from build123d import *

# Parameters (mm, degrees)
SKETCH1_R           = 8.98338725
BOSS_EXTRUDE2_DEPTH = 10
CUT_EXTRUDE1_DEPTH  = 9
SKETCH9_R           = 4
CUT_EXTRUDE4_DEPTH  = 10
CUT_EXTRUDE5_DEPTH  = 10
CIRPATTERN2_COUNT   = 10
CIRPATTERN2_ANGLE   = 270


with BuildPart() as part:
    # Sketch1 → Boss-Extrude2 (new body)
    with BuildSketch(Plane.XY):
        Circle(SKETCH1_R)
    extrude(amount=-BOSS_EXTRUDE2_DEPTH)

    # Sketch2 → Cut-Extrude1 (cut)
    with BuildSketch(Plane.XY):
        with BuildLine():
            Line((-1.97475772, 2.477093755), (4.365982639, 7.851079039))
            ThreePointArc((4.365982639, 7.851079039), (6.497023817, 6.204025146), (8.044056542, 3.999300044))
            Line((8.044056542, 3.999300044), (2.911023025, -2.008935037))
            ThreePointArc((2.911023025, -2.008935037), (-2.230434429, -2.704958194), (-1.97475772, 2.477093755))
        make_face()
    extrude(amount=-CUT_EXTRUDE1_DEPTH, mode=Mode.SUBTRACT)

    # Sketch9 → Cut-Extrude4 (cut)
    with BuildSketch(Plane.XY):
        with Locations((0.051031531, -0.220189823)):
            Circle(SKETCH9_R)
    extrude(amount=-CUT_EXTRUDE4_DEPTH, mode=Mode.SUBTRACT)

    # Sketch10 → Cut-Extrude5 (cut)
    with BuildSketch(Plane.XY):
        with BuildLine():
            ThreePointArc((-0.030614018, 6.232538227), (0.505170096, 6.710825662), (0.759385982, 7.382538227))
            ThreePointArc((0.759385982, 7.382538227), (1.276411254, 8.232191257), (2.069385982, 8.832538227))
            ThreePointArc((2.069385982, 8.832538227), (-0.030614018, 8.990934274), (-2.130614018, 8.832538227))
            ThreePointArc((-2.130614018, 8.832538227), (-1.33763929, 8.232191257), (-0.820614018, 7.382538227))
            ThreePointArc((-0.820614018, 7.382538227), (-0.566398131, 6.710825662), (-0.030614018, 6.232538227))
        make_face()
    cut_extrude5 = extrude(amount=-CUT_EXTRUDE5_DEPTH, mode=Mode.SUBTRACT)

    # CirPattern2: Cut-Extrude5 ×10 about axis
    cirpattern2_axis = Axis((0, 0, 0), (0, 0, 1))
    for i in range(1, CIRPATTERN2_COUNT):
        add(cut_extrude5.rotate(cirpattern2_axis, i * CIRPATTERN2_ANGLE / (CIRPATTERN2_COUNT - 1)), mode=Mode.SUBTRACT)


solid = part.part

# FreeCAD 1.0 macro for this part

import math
import FreeCAD as App
import Part
import Sketcher
Q = App.Units.Quantity

doc = App.newDocument("Part")
params = doc.addObject("Spreadsheet::Sheet", "Params")
for row, (alias, value) in enumerate([
    ("pad1_length", "10 mm"),
    ("pocket1_length", "9 mm"),
    ("sketch3_diameter", "8 mm"),
    ("pocket2_length", "10 mm"),
    ("sketch4_radius", "14 mm"),
    ("sketch4_radius2", "1.51 mm"),
    ("sketch4_radius3", "2.66 mm"),
    ("pocket3_length", "10 mm"),
], start=1):
    params.set(f"A{row}", alias)
    params.set(f"B{row}", "=" + value)
    params.setAlias(f"B{row}", alias)

body = doc.addObject("PartDesign::Body", "Body")

sketch1 = body.newObject("Sketcher::SketchObject", "Sketch")
sketch1.AttachmentSupport = (doc.getObject("XY_Plane"), [""])
sketch1.MapMode = "FlatFace"
sketch1.addGeometry(Part.Circle(App.Vector(0, 0, 0), App.Vector(0, 0, 1), 9), False)
sketch1.addConstraint([
    Sketcher.Constraint("Coincident", 0, 3, -1, 1),
    Sketcher.Constraint("Diameter", 0, Q("17.966774 mm")),
])
pad1 = body.newObject("PartDesign::Pad", "Pad")
pad1.Profile = sketch1
pad1.setExpression("Length", "Params.pad1_length")
pad1.Reversed = True

sketch2 = body.newObject("Sketcher::SketchObject", "Sketch001")
sketch2.AttachmentSupport = (doc.getObject("XY_Plane"), [""])
sketch2.MapMode = "FlatFace"
sketch2.addGeometry([
    Part.LineSegment(App.Vector(4.4, 7.9, 0), App.Vector(-2, 2.5, 0)),
    Part.ArcOfCircle(Part.Circle(App.Vector(0.1, -0.2, 0), App.Vector(0, 0, 1), 3.4), math.radians(127), math.radians(328)),
    Part.LineSegment(App.Vector(2.9, -2, 0), App.Vector(8, 4, 0)),
    Part.ArcOfCircle(Part.Circle(App.Vector(0, 0, 0), App.Vector(0, 0, 1), 9), math.radians(26), math.radians(61)),
], False)
sketch2.addConstraint([
    Sketcher.Constraint("Coincident", 0, 2, 1, 1),
    Sketcher.Constraint("Coincident", 1, 2, 2, 1),
    Sketcher.Constraint("Coincident", 2, 2, 3, 1),
    Sketcher.Constraint("Coincident", 3, 2, 0, 1),
    Sketcher.Constraint("Coincident", 3, 3, -1, 1),
    Sketcher.Constraint("Radius", 1, Q("3.373301 mm")),
    Sketcher.Constraint("Radius", 3, Q("8.983387 mm")),
    Sketcher.Constraint("DistanceY", -1, 1, 2, 2, Q("3.9993 mm")),
    Sketcher.Constraint("Distance", 0, Q("8.311721 mm")),
    Sketcher.Constraint("DistanceX", -1, 1, 1, 3, Q("0.051032 mm")),
    Sketcher.Constraint("DistanceY", 1, 3, -1, 1, Q("0.22019 mm")),
    Sketcher.Constraint("DistanceY", -1, 1, 3, 2, Q("7.851079 mm")),
    Sketcher.Constraint("DistanceX", 1, 3, 1, 2, Q("2.859991 mm")),
])
pocket1 = body.newObject("PartDesign::Pocket", "Pocket")
pocket1.Profile = sketch2
pocket1.setExpression("Length", "Params.pocket1_length")

sketch3 = body.newObject("Sketcher::SketchObject", "Sketch002")
sketch3.AttachmentSupport = (doc.getObject("XY_Plane"), [""])
sketch3.MapMode = "FlatFace"
sketch3.addGeometry(Part.Circle(App.Vector(0.1, -0.2, 0), App.Vector(0, 0, 1), 4), False)
sketch3.addConstraint([
    Sketcher.Constraint("Diameter", 0, Q("8 mm")),
    Sketcher.Constraint("DistanceX", -1, 1, 0, 3, Q("0.051032 mm")),
    Sketcher.Constraint("DistanceY", 0, 3, -1, 1, Q("0.22019 mm")),
])
sketch3.setExpression("Constraints[0]", "Params.sketch3_diameter")
pocket2 = body.newObject("PartDesign::Pocket", "Pocket001")
pocket2.Profile = sketch3
pocket2.setExpression("Length", "Params.pocket2_length")

sketch4 = body.newObject("Sketcher::SketchObject", "Sketch003")
sketch4.AttachmentSupport = (doc.getObject("XY_Plane"), [""])
sketch4.MapMode = "FlatFace"
sketch4.addGeometry([
    Part.ArcOfCircle(Part.Circle(App.Vector(-0.7, 7.6, 0), App.Vector(0, 0, 1), 1.5), math.radians(-62), math.radians(-7)),
    Part.ArcOfCircle(Part.Circle(App.Vector(3.3, 6.4, 0), App.Vector(0, 0, 1), 2.7), math.radians(116), math.radians(159)),
    Part.ArcOfCircle(Part.Circle(App.Vector(0, -5, 0), App.Vector(0, 0, 1), 14), math.radians(81.37), math.radians(98.63)),
    Part.ArcOfCircle(Part.Circle(App.Vector(-3.3, 6.4, 0), App.Vector(0, 0, 1), 2.7), math.radians(21), math.radians(64)),
    Part.ArcOfCircle(Part.Circle(App.Vector(0.7, 7.6, 0), App.Vector(0, 0, 1), 1.5), math.radians(-173), math.radians(-118)),
], False)
sketch4.addConstraint([
    Sketcher.Constraint("Coincident", 0, 2, 1, 2),
    Sketcher.Constraint("Coincident", 1, 1, 2, 1),
    Sketcher.Constraint("Coincident", 2, 2, 3, 2),
    Sketcher.Constraint("Coincident", 3, 1, 4, 1),
    Sketcher.Constraint("Coincident", 4, 2, 0, 1),
    Sketcher.Constraint("Equal", 1, 3),
    Sketcher.Constraint("Equal", 0, 4),
    Sketcher.Constraint("Horizontal", 1, 3, 3, 3),
    Sketcher.Constraint("Horizontal", 0, 3, 4, 3),
    Sketcher.Constraint("Horizontal", 1, 1, 2, 2),
    Sketcher.Constraint("Horizontal", 0, 2, 3, 1),
    Sketcher.Constraint("Radius", 2, Q("14 mm")),
    Sketcher.Constraint("Radius", 0, Q("1.51 mm")),
    Sketcher.Constraint("Radius", 1, Q("2.66 mm")),
    Sketcher.Constraint("DistanceX", 2, 2, 1, 1, Q("4.2 mm")),
    Sketcher.Constraint("DistanceX", 2, 3, 0, 2, Q("0.79 mm")),
    Sketcher.Constraint("DistanceY", 0, 2, 1, 1, Q("1.45 mm")),
    Sketcher.Constraint("DistanceY", 4, 2, 0, 2, Q("1.15 mm")),
    Sketcher.Constraint("DistanceX", 0, 3, -1, 1, Q("0.739449 mm")),
    Sketcher.Constraint("DistanceY", -1, 1, 1, 3, Q("6.448988 mm")),
])
sketch4.setExpression("Constraints[11]", "Params.sketch4_radius")
sketch4.setExpression("Constraints[12]", "Params.sketch4_radius2")
sketch4.setExpression("Constraints[13]", "Params.sketch4_radius3")
pocket3 = body.newObject("PartDesign::Pocket", "Pocket002")
pocket3.Profile = sketch4
pocket3.setExpression("Length", "Params.pocket3_length")
doc.recompute()

polarpattern = body.newObject("PartDesign::PolarPattern", "PolarPattern")
polarpattern.Originals = [pocket3]
polarpattern.Axis = (doc.getObject("Z_Axis"), [""])
polarpattern.Angle = 270
polarpattern.Occurrences = 10
body.Tip = polarpattern

doc.recompute()
